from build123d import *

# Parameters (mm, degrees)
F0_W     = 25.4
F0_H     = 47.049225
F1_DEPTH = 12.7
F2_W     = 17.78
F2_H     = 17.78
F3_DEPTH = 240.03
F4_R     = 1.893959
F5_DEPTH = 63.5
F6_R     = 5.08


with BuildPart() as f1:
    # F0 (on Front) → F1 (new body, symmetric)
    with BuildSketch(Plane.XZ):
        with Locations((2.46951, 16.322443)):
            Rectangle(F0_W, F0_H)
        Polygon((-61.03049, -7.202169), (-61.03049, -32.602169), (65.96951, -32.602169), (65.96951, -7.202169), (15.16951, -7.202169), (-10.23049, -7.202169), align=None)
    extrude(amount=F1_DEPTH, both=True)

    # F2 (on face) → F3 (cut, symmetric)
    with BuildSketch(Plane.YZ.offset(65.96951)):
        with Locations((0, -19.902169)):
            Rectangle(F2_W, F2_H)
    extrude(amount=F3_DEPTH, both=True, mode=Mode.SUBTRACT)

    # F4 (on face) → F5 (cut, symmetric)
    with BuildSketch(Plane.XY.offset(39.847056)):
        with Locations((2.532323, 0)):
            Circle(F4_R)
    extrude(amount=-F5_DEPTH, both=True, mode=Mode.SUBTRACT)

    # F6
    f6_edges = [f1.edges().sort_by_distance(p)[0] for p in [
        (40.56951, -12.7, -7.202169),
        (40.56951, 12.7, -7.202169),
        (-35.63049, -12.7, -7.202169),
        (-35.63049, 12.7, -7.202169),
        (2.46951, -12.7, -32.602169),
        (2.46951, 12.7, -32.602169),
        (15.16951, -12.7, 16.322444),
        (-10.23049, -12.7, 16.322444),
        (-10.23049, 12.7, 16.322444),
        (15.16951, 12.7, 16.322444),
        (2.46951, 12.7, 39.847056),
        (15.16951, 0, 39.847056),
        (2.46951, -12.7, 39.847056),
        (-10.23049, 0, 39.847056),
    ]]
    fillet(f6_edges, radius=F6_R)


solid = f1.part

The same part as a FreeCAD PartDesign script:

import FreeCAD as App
import Part
import Sketcher
from FreeCAD import Vector
Q = App.Units.Quantity


def edges_at(feature, points):
    """Names of the edges that pass closest to the given points."""
    edges = feature.Shape.Edges
    near = lambda p: min(range(len(edges)), key=lambda i: edges[i].distToShape(Part.Vertex(*p))[0])
    return sorted({f"Edge{near(p) + 1}" for p in points})


def add_polygon(sketch, points):
    """Adds a closed chain of lines whose ends are joined by coincident constraints."""
    first, n = sketch.GeometryCount, len(points)
    for a, b in zip(points, points[1:] + points[:1]):
        sketch.addGeometry(Part.LineSegment(App.Vector(*a, 0), App.Vector(*b, 0)), False)
    for i in range(n):
        sketch.addConstraint(Sketcher.Constraint("Coincident", first + i, 2, first + (i + 1) % n, 1))

doc = App.newDocument("Part")
body = doc.addObject("PartDesign::Body", "Body")

# Sketch on XZ plane
sketch1 = doc.addObject("Sketcher::SketchObject", "Sketch")
body.addObject(sketch1)
sketch1.AttachmentSupport = (doc.XZ_Plane, [""])
sketch1.MapMode = "FlatFace"
add_polygon(sketch1, [(-10, -7), (-61, -7), (-61, -33), (66, -33), (66, -7), (15, -7), (15, 40), (-10, 40)])  # lines 0-7
sketch1.addConstraint(Sketcher.Constraint("Horizontal", 0))
sketch1.addConstraint(Sketcher.Constraint("Vertical", 1))
sketch1.addConstraint(Sketcher.Constraint("Horizontal", 2))
sketch1.addConstraint(Sketcher.Constraint("Vertical", 3))
sketch1.addConstraint(Sketcher.Constraint("Horizontal", 4))
sketch1.addConstraint(Sketcher.Constraint("Vertical", 5))
sketch1.addConstraint(Sketcher.Constraint("Horizontal", 6))
sketch1.addConstraint(Sketcher.Constraint("Vertical", 7))
sketch1.addConstraint(Sketcher.Constraint("Horizontal", 0, 2, 3, 2))
sketch1.addConstraint(Sketcher.Constraint("Equal", 0, 4))
sketch1.addConstraint(Sketcher.Constraint("Equal", 6, 1))
sketch1.addConstraint(Sketcher.Constraint("DistanceX", 0, 2, 0, 1, Q("2 in")))
sketch1.addConstraint(Sketcher.Constraint("DistanceX", 2, 1, 2, 2, Q("5 in")))
sketch1.addConstraint(Sketcher.Constraint("DistanceY", 5, 1, 5, 2, Q("47.049225 mm")))
sketch1.addConstraint(Sketcher.Constraint("DistanceX", 0, 2, -1, 1, Q("61.03049 mm")))
sketch1.addConstraint(Sketcher.Constraint("DistanceY", 0, 2, -1, 1, Q("7.202169 mm")))
pad1 = doc.addObject("PartDesign::Pad", "Pad")
body.addObject(pad1)
pad1.Profile = sketch1
pad1.Length = Q("1 in")
pad1.Midplane = True

# Sketch on YZ plane
sketch2 = doc.addObject("Sketcher::SketchObject", "Sketch001")
body.addObject(sketch2)
sketch2.AttachmentSupport = (doc.YZ_Plane, [""])
sketch2.MapMode = "FlatFace"
sketch2.AttachmentOffset = App.Placement(Vector(0, 0, 65.96951), App.Rotation())
add_polygon(sketch2, [(-9, -11), (-9, -29), (9, -29), (9, -11)])  # lines 0-3
sketch2.addConstraint(Sketcher.Constraint("Vertical", 0))
sketch2.addConstraint(Sketcher.Constraint("Horizontal", 1))
sketch2.addConstraint(Sketcher.Constraint("Vertical", 2))
sketch2.addConstraint(Sketcher.Constraint("Horizontal", 3))
sketch2.addConstraint(Sketcher.Constraint("Equal", 3, 0))
sketch2.addConstraint(Sketcher.Constraint("DistanceX", 1, 1, 1, 2, Q("0.7 in")))
sketch2.addConstraint(Sketcher.Constraint("DistanceX", 0, 2, -1, 1, Q("0.35 in")))
sketch2.addConstraint(Sketcher.Constraint("DistanceY", 0, 2, -1, 1, Q("28.792169 mm")))
pocket1 = doc.addObject("PartDesign::Pocket", "Pocket")
body.addObject(pocket1)
pocket1.Profile = sketch2
pocket1.Length = Q("18.9 in")
pocket1.Midplane = True

# Sketch on XY plane
sketch3 = doc.addObject("Sketcher::SketchObject", "Sketch002")
body.addObject(sketch3)
sketch3.AttachmentSupport = (doc.XY_Plane, [""])
sketch3.MapMode = "FlatFace"
sketch3.AttachmentOffset = App.Placement(Vector(0, 0, 39.847056), App.Rotation())
sketch3.addGeometry(Part.Circle(Vector(2.5, 0, 0), Vector(0, 0, 1), 1.9), False)
sketch3.addConstraint(Sketcher.Constraint("PointOnObject", 0, 3, -1))
sketch3.addConstraint(Sketcher.Constraint("Diameter", 0, Q("3.787918 mm")))
sketch3.addConstraint(Sketcher.Constraint("DistanceX", -1, 1, 0, 3, Q("2.532323 mm")))
pocket2 = doc.addObject("PartDesign::Pocket", "Pocket001")
body.addObject(pocket2)
pocket2.Profile = sketch3
pocket2.Length = Q("5 in")
pocket2.Midplane = True
doc.recompute()

fillet = doc.addObject("PartDesign::Fillet", "Fillet")
body.addObject(fillet)
fillet.Base = (pocket2, edges_at(pocket2, [
    (40.57, -12.7, -7.202),
    (40.57, 12.7, -7.202),
    (-35.63, -12.7, -7.202),
    (-35.63, 12.7, -7.202),
    (2.47, -12.7, -32.602),
    (2.47, 12.7, -32.602),
    (15.17, -12.7, 16.322),
    (-10.23, -12.7, 16.322),
    (-10.23, 12.7, 16.322),
    (15.17, 12.7, 16.322),
    (2.47, 12.7, 39.847),
    (15.17, 0, 39.847),
    (2.47, -12.7, 39.847),
    (-10.23, 0, 39.847),
]))
fillet.Radius = Q("0.2 in")

doc.recompute()
